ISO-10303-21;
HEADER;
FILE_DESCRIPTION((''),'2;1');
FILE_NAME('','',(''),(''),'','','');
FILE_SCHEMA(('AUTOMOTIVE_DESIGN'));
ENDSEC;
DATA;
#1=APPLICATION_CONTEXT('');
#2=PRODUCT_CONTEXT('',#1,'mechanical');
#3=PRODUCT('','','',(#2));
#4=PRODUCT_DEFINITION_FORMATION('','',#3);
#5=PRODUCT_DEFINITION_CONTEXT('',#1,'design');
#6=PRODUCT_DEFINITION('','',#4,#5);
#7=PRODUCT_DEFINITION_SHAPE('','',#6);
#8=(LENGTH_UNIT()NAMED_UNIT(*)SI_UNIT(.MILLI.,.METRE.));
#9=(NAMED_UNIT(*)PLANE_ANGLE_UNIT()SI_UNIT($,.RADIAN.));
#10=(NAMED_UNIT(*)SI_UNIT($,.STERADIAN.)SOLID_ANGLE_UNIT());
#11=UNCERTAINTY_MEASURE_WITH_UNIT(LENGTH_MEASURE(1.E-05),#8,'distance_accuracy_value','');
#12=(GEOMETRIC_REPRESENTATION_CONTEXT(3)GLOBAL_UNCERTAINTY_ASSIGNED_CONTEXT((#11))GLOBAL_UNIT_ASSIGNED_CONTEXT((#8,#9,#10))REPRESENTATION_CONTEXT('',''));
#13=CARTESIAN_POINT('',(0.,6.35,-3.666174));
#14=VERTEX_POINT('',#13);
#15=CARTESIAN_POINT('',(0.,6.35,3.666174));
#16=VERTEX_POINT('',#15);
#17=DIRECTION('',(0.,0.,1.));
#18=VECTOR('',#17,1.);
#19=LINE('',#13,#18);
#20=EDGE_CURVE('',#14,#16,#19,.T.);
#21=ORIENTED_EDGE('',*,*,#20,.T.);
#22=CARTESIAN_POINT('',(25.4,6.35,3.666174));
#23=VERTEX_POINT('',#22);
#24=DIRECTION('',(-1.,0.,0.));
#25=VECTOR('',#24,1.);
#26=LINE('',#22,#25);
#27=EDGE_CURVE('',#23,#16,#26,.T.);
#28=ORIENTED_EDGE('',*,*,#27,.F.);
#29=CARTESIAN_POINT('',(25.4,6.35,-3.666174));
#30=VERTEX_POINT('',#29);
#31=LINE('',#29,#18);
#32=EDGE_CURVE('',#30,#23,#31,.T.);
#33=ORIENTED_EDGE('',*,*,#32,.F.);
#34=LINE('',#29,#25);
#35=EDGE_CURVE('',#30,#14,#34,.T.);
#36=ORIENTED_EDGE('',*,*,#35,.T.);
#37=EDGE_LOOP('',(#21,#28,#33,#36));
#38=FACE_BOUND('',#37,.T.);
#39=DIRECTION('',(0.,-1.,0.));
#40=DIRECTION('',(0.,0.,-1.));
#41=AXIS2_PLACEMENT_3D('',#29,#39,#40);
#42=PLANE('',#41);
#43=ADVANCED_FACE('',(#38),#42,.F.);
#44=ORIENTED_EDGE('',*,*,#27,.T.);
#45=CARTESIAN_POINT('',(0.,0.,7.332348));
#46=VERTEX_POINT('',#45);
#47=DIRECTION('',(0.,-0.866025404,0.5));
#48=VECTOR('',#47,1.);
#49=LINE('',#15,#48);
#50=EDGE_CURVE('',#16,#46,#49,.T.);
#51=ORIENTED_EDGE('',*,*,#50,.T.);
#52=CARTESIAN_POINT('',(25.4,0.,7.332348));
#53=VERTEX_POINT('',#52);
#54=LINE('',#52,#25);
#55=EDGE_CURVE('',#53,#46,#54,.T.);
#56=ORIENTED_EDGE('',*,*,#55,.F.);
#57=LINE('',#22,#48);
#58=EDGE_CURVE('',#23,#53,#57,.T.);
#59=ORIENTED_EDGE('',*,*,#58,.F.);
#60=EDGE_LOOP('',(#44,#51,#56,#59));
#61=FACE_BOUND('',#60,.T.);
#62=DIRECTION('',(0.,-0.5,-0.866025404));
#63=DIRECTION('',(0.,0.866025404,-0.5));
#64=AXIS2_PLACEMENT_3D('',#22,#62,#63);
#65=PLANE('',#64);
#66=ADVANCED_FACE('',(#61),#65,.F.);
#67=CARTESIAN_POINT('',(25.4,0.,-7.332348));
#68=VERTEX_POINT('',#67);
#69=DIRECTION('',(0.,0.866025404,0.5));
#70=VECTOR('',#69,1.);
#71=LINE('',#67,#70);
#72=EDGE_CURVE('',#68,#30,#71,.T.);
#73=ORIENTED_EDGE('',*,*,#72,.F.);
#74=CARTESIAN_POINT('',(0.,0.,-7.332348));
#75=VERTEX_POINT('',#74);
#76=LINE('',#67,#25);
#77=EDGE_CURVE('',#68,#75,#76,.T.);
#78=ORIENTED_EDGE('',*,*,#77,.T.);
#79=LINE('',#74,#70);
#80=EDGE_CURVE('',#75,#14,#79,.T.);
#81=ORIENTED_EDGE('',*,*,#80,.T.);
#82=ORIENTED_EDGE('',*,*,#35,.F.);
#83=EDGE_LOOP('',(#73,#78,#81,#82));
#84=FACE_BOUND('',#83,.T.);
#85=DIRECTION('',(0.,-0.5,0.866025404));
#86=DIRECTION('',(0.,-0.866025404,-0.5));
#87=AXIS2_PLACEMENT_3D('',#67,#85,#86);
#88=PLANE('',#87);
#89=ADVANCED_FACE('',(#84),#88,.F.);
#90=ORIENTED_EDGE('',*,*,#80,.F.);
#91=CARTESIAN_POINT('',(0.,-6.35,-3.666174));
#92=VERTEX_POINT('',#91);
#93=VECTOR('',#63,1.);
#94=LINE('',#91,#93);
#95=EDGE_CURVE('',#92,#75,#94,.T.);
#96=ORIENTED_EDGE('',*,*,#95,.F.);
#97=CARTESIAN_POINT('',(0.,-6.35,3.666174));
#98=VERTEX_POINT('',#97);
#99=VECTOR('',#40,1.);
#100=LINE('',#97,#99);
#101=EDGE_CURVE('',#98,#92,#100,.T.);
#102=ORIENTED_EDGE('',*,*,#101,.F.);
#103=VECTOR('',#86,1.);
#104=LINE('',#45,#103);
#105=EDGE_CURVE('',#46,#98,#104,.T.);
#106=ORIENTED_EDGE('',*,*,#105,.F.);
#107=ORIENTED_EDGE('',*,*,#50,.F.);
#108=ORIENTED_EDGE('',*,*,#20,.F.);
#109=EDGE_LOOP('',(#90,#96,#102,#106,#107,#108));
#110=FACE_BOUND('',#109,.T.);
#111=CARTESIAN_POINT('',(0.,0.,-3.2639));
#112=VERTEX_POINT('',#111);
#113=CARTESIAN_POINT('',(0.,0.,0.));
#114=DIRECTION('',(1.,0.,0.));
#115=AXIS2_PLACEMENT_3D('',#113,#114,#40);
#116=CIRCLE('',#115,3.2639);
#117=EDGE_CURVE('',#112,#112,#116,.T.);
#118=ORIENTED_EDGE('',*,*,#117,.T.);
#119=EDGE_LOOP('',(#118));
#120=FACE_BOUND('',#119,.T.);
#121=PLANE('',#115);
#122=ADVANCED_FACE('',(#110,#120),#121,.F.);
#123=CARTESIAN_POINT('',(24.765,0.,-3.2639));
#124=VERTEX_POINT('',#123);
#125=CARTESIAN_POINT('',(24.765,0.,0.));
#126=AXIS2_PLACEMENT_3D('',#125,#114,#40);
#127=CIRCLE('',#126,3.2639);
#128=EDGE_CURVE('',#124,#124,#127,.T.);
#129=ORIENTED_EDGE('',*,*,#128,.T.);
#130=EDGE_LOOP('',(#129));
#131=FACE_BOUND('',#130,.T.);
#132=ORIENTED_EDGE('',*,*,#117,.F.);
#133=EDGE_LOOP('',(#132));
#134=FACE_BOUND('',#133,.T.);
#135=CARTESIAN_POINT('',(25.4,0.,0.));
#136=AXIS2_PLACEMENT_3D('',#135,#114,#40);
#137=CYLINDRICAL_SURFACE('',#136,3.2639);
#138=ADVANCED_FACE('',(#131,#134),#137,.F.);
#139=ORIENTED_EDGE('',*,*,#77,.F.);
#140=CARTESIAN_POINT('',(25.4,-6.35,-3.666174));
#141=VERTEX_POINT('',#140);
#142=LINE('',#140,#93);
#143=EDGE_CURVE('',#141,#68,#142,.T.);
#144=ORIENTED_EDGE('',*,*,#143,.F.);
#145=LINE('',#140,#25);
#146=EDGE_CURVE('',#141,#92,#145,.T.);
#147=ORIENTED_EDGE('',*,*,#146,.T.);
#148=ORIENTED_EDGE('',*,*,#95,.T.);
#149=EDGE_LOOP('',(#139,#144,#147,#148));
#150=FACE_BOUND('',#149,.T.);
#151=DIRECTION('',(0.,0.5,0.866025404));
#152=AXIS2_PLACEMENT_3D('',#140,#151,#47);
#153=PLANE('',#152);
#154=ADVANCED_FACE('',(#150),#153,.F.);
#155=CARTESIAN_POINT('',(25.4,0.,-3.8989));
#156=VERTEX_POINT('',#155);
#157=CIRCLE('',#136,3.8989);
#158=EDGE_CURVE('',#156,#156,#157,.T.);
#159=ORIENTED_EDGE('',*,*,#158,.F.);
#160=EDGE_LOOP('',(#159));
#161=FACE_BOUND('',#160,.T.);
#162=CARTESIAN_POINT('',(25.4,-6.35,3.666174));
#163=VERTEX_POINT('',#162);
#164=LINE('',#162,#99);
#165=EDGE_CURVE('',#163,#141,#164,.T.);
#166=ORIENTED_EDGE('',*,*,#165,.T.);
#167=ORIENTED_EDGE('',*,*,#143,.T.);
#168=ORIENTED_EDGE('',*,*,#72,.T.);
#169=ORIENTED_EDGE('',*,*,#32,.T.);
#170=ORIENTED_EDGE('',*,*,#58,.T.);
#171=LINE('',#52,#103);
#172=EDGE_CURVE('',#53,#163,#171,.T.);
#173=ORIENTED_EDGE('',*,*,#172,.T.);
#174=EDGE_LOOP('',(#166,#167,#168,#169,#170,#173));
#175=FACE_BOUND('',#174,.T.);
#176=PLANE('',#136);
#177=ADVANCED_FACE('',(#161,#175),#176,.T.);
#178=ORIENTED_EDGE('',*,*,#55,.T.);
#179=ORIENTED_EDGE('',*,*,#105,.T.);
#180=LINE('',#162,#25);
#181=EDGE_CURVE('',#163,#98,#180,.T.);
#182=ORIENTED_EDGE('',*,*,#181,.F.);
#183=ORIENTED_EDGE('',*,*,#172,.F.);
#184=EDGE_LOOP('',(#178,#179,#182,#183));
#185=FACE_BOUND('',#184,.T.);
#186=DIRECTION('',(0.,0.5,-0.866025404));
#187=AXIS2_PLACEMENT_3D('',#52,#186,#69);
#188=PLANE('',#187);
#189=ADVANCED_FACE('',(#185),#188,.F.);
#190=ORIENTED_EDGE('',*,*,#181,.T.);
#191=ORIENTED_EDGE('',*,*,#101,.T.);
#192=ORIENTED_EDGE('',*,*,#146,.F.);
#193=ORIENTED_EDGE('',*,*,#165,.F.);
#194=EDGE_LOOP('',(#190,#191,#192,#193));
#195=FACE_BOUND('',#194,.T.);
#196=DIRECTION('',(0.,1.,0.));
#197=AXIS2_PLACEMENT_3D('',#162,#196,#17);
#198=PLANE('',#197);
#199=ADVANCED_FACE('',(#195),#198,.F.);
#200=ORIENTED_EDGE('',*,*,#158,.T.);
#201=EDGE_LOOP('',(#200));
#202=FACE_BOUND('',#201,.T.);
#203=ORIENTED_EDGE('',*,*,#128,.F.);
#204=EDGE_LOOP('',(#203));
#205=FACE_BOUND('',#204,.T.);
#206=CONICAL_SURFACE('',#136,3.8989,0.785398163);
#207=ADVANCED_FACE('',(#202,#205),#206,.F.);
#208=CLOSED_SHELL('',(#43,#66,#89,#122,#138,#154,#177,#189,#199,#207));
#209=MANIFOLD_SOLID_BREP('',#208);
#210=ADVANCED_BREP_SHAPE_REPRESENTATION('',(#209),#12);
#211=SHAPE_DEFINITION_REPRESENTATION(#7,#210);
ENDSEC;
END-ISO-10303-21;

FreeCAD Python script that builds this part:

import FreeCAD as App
import Part
import Sketcher

V = App.Vector
Q = App.Units.Quantity

doc = App.newDocument("Part")
params = doc.addObject("Spreadsheet::Sheet", "Params")
for row, (alias, value) in enumerate([
    ("pad1_length", "1 in"),
    ("sketch2_diameter", "0.257 in"),
    ("hole_diameter", "0.257 in"),
    ("hole_csink_diameter", "0.307 in"),
], start=1):
    params.set(f"A{row}", alias)
    params.set(f"B{row}", "=" + value)
    params.setAlias(f"B{row}", alias)

body = doc.addObject("PartDesign::Body", "Body")

# Sketch on YZ plane
sketch1 = doc.addObject("Sketcher::SketchObject", "Sketch")
body.addObject(sketch1)
sketch1.AttachmentSupport = (doc.YZ_Plane, [""])
sketch1.MapMode = "FlatFace"
sketch1.addGeometry(Part.LineSegment(V(0, -7, 0), V(6, -4, 0)), False)
sketch1.addGeometry(Part.LineSegment(V(6, -4, 0), V(6, 4, 0)), False)
sketch1.addGeometry(Part.LineSegment(V(6, 4, 0), V(0, 7, 0)), False)
sketch1.addGeometry(Part.LineSegment(V(0, 7, 0), V(-6, 4, 0)), False)
sketch1.addGeometry(Part.LineSegment(V(-6, 4, 0), V(-6, -4, 0)), False)
sketch1.addGeometry(Part.LineSegment(V(-6, -4, 0), V(0, -7, 0)), False)
sketch1.addConstraint(Sketcher.Constraint("Coincident", 0, 2, 1, 1))
sketch1.addConstraint(Sketcher.Constraint("Coincident", 1, 2, 2, 1))
sketch1.addConstraint(Sketcher.Constraint("Coincident", 2, 2, 3, 1))
sketch1.addConstraint(Sketcher.Constraint("Coincident", 3, 2, 4, 1))
sketch1.addConstraint(Sketcher.Constraint("Coincident", 4, 2, 5, 1))
sketch1.addConstraint(Sketcher.Constraint("Coincident", 5, 2, 0, 1))
sketch1.addConstraint(Sketcher.Constraint("Vertical", 1))
sketch1.addConstraint(Sketcher.Constraint("Vertical", 4))
sketch1.addConstraint(Sketcher.Constraint("Symmetric", 0, 2, 3, 2, -1, 1))
sketch1.addConstraint(Sketcher.Constraint("Symmetric", 2, 2, 5, 2, -1, 1))
sketch1.addConstraint(Sketcher.Constraint("PointOnObject", 2, 2, -2))
sketch1.addConstraint(Sketcher.Constraint("Parallel", 2, 5))
sketch1.addConstraint(Sketcher.Constraint("Horizontal", 1, 2, 3, 2))
sketch1.addConstraint(Sketcher.Constraint("Angle", 0, Q("30 deg")))
sketch1.addConstraint(Sketcher.Constraint("DistanceX", 3, 2, 1, 2, Q("0.5 in")))
sketch1.addConstraint(Sketcher.Constraint("DistanceY", 1, 1, 1, 2, 7.332348))
pad1 = doc.addObject("PartDesign::Pad", "Pad")
body.addObject(pad1)
pad1.Profile = sketch1
pad1.setExpression("Length", "Params.pad1_length")

# Sketch on YZ plane
sketch2 = doc.addObject("Sketcher::SketchObject", "Sketch001")
body.addObject(sketch2)
sketch2.AttachmentSupport = (doc.YZ_Plane, [""])
sketch2.MapMode = "FlatFace"
sketch2.AttachmentOffset = App.Placement(V(0, 0, 1 * 25.4), App.Rotation())
sketch2.addGeometry(Part.Circle(V(0, 0, 0), V(0, 0, 1), 3.3), False)
sketch2.addConstraint(Sketcher.Constraint("Coincident", 0, 3, -1, 1))
sketch2.addConstraint(Sketcher.Constraint("Diameter", 0, Q("0.257 in")))
sketch2.setExpression("Constraints[1]", "Params.sketch2_diameter")
doc.recompute()
hole = doc.addObject("PartDesign::Hole", "Hole")
body.addObject(hole)
hole.Profile = sketch2
hole.ThreadType = "None"
hole.setExpression("Diameter", "Params.hole_diameter")
hole.DepthType = "ThroughAll"
hole.HoleCutType = "Countersink"
hole.setExpression("HoleCutDiameter", "Params.hole_csink_diameter")
hole.HoleCutCountersinkAngle = 90

doc.recompute()
